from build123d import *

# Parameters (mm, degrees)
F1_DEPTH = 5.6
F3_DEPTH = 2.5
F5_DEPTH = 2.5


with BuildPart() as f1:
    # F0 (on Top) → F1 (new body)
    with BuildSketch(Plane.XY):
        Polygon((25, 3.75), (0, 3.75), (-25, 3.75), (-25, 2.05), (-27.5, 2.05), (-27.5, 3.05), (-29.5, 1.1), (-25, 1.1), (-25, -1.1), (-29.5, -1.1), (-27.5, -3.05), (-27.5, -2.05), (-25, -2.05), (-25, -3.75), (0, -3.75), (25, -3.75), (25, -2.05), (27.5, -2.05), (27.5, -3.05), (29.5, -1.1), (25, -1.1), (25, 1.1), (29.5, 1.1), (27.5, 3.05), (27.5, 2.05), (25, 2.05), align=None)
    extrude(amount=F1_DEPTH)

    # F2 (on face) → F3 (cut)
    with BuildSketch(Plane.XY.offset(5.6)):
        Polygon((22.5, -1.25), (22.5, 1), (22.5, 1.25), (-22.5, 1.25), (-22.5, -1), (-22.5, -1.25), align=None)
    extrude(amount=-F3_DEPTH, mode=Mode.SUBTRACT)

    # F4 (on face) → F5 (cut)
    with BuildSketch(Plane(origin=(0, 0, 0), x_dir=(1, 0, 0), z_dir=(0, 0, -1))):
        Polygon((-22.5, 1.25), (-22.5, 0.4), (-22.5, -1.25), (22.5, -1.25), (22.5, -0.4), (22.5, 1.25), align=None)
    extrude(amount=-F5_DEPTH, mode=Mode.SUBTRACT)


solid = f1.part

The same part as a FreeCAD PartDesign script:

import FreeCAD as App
import Part
import Sketcher
Q = App.Units.Quantity


def add_polygon(sketch, points):
    """Adds a closed chain of lines whose ends are joined by coincident constraints."""
    first, n = sketch.GeometryCount, len(points)
    for a, b in zip(points, points[1:] + points[:1]):
        sketch.addGeometry(Part.LineSegment(App.Vector(*a, 0), App.Vector(*b, 0)), False)
    for i in range(n):
        sketch.addConstraint(Sketcher.Constraint("Coincident", first + i, 2, first + (i + 1) % n, 1))

doc = App.newDocument("Part")
body = doc.addObject("PartDesign::Body", "Body")

# Sketch on XY plane
sketch1 = body.newObject("Sketcher::SketchObject", "Sketch")
sketch1.AttachmentSupport = (doc.getObject("XY_Plane"), [""])
sketch1.MapMode = "FlatFace"
add_polygon(sketch1, [(25, 3.8), (-25, 3.8), (-25, 2), (-27.5, 2), (-27.5, 3), (-29.5, 1.1), (-25, 1.1), (-25, -1.1), (-29.5, -1.1), (-27.5, -3), (-27.5, -2), (-25, -2), (-25, -3.8), (25, -3.8), (25, -2), (27.5, -2), (27.5, -3), (29.5, -1.1), (25, -1.1), (25, 1.1), (29.5, 1.1), (27.5, 3), (27.5, 2), (25, 2)])  # lines 0-23
sketch1.addConstraint(Sketcher.Constraint("Horizontal", 0))
sketch1.addConstraint(Sketcher.Constraint("Vertical", 1))
sketch1.addConstraint(Sketcher.Constraint("Horizontal", 2))
sketch1.addConstraint(Sketcher.Constraint("Vertical", 3))
sketch1.addConstraint(Sketcher.Constraint("Horizontal", 5))
sketch1.addConstraint(Sketcher.Constraint("Vertical", 6))
sketch1.addConstraint(Sketcher.Constraint("Horizontal", 7))
sketch1.addConstraint(Sketcher.Constraint("Vertical", 9))
sketch1.addConstraint(Sketcher.Constraint("Horizontal", 10))
sketch1.addConstraint(Sketcher.Constraint("Vertical", 11))
sketch1.addConstraint(Sketcher.Constraint("Horizontal", 12))
sketch1.addConstraint(Sketcher.Constraint("Vertical", 13))
sketch1.addConstraint(Sketcher.Constraint("Horizontal", 14))
sketch1.addConstraint(Sketcher.Constraint("Vertical", 15))
sketch1.addConstraint(Sketcher.Constraint("Horizontal", 17))
sketch1.addConstraint(Sketcher.Constraint("Vertical", 18))
sketch1.addConstraint(Sketcher.Constraint("Horizontal", 19))
sketch1.addConstraint(Sketcher.Constraint("Vertical", 21))
sketch1.addConstraint(Sketcher.Constraint("Horizontal", 22))
sketch1.addConstraint(Sketcher.Constraint("Vertical", 23))
sketch1.addConstraint(Sketcher.Constraint("Symmetric", 0, 2, 12, 2, -1, 1))
sketch1.addConstraint(Sketcher.Constraint("Symmetric", 2, 2, 14, 2, -1, 1))
sketch1.addConstraint(Sketcher.Constraint("Symmetric", 4, 2, 16, 2, -1, 1))
sketch1.addConstraint(Sketcher.Constraint("Symmetric", 6, 2, 18, 2, -1, 1))
sketch1.addConstraint(Sketcher.Constraint("Symmetric", 8, 2, 20, 2, -1, 1))
sketch1.addConstraint(Sketcher.Constraint("Symmetric", 10, 2, 22, 2, -1, 1))
sketch1.addConstraint(Sketcher.Constraint("Symmetric", 10, 2, 13, 2, -2))
sketch1.addConstraint(Sketcher.Constraint("Symmetric", 8, 2, 15, 2, -2))
sketch1.addConstraint(Sketcher.Constraint("Symmetric", 7, 2, 16, 2, -2))
sketch1.addConstraint(Sketcher.Constraint("Parallel", 4, 16))
sketch1.addConstraint(Sketcher.Constraint("Parallel", 8, 20))
sketch1.addConstraint(Sketcher.Constraint("Vertical", 1, 2, 5, 2))
sketch1.addConstraint(Sketcher.Constraint("DistanceX", 0, 2, 0, 1, Q("50 mm")))
sketch1.addConstraint(Sketcher.Constraint("DistanceY", 3, 1, 3, 2, Q("1 mm")))
sketch1.addConstraint(Sketcher.Constraint("DistanceX", 2, 2, 2, 1, Q("2.5 mm")))
sketch1.addConstraint(Sketcher.Constraint("DistanceX", 5, 1, 5, 2, Q("4.5 mm")))
sketch1.addConstraint(Sketcher.Constraint("DistanceY", 1, 2, 1, 1, Q("1.7 mm")))
sketch1.addConstraint(Sketcher.Constraint("DistanceY", 6, 2, 6, 1, Q("2.2 mm")))
sketch1.addConstraint(Sketcher.Constraint("DistanceY", 8, 2, 2, 2, Q("5.1 mm")))
pad1 = body.newObject("PartDesign::Pad", "Pad")
pad1.Profile = sketch1
pad1.Length = 5.6

# Sketch on XY plane
sketch2 = body.newObject("Sketcher::SketchObject", "Sketch001")
sketch2.AttachmentSupport = (doc.getObject("XY_Plane"), [""])
sketch2.MapMode = "FlatFace"
sketch2.AttachmentOffset = App.Placement(App.Vector(0, 0, 5.6), App.Rotation())
add_polygon(sketch2, [(22.5, -1.2), (22.5, 1.2), (-22.5, 1.2), (-22.5, -1.2)])  # lines 0-3
sketch2.addConstraint(Sketcher.Constraint("Vertical", 0))
sketch2.addConstraint(Sketcher.Constraint("Horizontal", 1))
sketch2.addConstraint(Sketcher.Constraint("Vertical", 2))
sketch2.addConstraint(Sketcher.Constraint("Horizontal", 3))
sketch2.addConstraint(Sketcher.Constraint("Symmetric", 0, 2, 2, 2, -1, 1))
sketch2.addConstraint(Sketcher.Constraint("DistanceX", 1, 2, 1, 1, Q("45 mm")))
sketch2.addConstraint(Sketcher.Constraint("DistanceY", 0, 1, 0, 2, Q("2.5 mm")))
pocket1 = body.newObject("PartDesign::Pocket", "Pocket")
pocket1.Profile = sketch2
pocket1.Length = 2.5

# Sketch on XY plane
sketch3 = body.newObject("Sketcher::SketchObject", "Sketch002")
sketch3.AttachmentSupport = (doc.getObject("XY_Plane"), [""])
sketch3.MapMode = "FlatFace"
add_polygon(sketch3, [(-22.5, -1.2), (-22.5, 1.2), (22.5, 1.2), (22.5, -1.2)])  # lines 0-3
sketch3.addConstraint(Sketcher.Constraint("Vertical", 0))
sketch3.addConstraint(Sketcher.Constraint("Horizontal", 1))
sketch3.addConstraint(Sketcher.Constraint("Vertical", 2))
sketch3.addConstraint(Sketcher.Constraint("Horizontal", 3))
sketch3.addConstraint(Sketcher.Constraint("Symmetric", 0, 2, 2, 2, -1, 1))
sketch3.addConstraint(Sketcher.Constraint("DistanceX", 1, 1, 1, 2, Q("45 mm")))
sketch3.addConstraint(Sketcher.Constraint("DistanceY", 0, 1, 0, 2, Q("2.5 mm")))
pocket2 = body.newObject("PartDesign::Pocket", "Pocket001")
pocket2.Profile = sketch3
pocket2.Length = 2.5
pocket2.Reversed = True

doc.recompute()
